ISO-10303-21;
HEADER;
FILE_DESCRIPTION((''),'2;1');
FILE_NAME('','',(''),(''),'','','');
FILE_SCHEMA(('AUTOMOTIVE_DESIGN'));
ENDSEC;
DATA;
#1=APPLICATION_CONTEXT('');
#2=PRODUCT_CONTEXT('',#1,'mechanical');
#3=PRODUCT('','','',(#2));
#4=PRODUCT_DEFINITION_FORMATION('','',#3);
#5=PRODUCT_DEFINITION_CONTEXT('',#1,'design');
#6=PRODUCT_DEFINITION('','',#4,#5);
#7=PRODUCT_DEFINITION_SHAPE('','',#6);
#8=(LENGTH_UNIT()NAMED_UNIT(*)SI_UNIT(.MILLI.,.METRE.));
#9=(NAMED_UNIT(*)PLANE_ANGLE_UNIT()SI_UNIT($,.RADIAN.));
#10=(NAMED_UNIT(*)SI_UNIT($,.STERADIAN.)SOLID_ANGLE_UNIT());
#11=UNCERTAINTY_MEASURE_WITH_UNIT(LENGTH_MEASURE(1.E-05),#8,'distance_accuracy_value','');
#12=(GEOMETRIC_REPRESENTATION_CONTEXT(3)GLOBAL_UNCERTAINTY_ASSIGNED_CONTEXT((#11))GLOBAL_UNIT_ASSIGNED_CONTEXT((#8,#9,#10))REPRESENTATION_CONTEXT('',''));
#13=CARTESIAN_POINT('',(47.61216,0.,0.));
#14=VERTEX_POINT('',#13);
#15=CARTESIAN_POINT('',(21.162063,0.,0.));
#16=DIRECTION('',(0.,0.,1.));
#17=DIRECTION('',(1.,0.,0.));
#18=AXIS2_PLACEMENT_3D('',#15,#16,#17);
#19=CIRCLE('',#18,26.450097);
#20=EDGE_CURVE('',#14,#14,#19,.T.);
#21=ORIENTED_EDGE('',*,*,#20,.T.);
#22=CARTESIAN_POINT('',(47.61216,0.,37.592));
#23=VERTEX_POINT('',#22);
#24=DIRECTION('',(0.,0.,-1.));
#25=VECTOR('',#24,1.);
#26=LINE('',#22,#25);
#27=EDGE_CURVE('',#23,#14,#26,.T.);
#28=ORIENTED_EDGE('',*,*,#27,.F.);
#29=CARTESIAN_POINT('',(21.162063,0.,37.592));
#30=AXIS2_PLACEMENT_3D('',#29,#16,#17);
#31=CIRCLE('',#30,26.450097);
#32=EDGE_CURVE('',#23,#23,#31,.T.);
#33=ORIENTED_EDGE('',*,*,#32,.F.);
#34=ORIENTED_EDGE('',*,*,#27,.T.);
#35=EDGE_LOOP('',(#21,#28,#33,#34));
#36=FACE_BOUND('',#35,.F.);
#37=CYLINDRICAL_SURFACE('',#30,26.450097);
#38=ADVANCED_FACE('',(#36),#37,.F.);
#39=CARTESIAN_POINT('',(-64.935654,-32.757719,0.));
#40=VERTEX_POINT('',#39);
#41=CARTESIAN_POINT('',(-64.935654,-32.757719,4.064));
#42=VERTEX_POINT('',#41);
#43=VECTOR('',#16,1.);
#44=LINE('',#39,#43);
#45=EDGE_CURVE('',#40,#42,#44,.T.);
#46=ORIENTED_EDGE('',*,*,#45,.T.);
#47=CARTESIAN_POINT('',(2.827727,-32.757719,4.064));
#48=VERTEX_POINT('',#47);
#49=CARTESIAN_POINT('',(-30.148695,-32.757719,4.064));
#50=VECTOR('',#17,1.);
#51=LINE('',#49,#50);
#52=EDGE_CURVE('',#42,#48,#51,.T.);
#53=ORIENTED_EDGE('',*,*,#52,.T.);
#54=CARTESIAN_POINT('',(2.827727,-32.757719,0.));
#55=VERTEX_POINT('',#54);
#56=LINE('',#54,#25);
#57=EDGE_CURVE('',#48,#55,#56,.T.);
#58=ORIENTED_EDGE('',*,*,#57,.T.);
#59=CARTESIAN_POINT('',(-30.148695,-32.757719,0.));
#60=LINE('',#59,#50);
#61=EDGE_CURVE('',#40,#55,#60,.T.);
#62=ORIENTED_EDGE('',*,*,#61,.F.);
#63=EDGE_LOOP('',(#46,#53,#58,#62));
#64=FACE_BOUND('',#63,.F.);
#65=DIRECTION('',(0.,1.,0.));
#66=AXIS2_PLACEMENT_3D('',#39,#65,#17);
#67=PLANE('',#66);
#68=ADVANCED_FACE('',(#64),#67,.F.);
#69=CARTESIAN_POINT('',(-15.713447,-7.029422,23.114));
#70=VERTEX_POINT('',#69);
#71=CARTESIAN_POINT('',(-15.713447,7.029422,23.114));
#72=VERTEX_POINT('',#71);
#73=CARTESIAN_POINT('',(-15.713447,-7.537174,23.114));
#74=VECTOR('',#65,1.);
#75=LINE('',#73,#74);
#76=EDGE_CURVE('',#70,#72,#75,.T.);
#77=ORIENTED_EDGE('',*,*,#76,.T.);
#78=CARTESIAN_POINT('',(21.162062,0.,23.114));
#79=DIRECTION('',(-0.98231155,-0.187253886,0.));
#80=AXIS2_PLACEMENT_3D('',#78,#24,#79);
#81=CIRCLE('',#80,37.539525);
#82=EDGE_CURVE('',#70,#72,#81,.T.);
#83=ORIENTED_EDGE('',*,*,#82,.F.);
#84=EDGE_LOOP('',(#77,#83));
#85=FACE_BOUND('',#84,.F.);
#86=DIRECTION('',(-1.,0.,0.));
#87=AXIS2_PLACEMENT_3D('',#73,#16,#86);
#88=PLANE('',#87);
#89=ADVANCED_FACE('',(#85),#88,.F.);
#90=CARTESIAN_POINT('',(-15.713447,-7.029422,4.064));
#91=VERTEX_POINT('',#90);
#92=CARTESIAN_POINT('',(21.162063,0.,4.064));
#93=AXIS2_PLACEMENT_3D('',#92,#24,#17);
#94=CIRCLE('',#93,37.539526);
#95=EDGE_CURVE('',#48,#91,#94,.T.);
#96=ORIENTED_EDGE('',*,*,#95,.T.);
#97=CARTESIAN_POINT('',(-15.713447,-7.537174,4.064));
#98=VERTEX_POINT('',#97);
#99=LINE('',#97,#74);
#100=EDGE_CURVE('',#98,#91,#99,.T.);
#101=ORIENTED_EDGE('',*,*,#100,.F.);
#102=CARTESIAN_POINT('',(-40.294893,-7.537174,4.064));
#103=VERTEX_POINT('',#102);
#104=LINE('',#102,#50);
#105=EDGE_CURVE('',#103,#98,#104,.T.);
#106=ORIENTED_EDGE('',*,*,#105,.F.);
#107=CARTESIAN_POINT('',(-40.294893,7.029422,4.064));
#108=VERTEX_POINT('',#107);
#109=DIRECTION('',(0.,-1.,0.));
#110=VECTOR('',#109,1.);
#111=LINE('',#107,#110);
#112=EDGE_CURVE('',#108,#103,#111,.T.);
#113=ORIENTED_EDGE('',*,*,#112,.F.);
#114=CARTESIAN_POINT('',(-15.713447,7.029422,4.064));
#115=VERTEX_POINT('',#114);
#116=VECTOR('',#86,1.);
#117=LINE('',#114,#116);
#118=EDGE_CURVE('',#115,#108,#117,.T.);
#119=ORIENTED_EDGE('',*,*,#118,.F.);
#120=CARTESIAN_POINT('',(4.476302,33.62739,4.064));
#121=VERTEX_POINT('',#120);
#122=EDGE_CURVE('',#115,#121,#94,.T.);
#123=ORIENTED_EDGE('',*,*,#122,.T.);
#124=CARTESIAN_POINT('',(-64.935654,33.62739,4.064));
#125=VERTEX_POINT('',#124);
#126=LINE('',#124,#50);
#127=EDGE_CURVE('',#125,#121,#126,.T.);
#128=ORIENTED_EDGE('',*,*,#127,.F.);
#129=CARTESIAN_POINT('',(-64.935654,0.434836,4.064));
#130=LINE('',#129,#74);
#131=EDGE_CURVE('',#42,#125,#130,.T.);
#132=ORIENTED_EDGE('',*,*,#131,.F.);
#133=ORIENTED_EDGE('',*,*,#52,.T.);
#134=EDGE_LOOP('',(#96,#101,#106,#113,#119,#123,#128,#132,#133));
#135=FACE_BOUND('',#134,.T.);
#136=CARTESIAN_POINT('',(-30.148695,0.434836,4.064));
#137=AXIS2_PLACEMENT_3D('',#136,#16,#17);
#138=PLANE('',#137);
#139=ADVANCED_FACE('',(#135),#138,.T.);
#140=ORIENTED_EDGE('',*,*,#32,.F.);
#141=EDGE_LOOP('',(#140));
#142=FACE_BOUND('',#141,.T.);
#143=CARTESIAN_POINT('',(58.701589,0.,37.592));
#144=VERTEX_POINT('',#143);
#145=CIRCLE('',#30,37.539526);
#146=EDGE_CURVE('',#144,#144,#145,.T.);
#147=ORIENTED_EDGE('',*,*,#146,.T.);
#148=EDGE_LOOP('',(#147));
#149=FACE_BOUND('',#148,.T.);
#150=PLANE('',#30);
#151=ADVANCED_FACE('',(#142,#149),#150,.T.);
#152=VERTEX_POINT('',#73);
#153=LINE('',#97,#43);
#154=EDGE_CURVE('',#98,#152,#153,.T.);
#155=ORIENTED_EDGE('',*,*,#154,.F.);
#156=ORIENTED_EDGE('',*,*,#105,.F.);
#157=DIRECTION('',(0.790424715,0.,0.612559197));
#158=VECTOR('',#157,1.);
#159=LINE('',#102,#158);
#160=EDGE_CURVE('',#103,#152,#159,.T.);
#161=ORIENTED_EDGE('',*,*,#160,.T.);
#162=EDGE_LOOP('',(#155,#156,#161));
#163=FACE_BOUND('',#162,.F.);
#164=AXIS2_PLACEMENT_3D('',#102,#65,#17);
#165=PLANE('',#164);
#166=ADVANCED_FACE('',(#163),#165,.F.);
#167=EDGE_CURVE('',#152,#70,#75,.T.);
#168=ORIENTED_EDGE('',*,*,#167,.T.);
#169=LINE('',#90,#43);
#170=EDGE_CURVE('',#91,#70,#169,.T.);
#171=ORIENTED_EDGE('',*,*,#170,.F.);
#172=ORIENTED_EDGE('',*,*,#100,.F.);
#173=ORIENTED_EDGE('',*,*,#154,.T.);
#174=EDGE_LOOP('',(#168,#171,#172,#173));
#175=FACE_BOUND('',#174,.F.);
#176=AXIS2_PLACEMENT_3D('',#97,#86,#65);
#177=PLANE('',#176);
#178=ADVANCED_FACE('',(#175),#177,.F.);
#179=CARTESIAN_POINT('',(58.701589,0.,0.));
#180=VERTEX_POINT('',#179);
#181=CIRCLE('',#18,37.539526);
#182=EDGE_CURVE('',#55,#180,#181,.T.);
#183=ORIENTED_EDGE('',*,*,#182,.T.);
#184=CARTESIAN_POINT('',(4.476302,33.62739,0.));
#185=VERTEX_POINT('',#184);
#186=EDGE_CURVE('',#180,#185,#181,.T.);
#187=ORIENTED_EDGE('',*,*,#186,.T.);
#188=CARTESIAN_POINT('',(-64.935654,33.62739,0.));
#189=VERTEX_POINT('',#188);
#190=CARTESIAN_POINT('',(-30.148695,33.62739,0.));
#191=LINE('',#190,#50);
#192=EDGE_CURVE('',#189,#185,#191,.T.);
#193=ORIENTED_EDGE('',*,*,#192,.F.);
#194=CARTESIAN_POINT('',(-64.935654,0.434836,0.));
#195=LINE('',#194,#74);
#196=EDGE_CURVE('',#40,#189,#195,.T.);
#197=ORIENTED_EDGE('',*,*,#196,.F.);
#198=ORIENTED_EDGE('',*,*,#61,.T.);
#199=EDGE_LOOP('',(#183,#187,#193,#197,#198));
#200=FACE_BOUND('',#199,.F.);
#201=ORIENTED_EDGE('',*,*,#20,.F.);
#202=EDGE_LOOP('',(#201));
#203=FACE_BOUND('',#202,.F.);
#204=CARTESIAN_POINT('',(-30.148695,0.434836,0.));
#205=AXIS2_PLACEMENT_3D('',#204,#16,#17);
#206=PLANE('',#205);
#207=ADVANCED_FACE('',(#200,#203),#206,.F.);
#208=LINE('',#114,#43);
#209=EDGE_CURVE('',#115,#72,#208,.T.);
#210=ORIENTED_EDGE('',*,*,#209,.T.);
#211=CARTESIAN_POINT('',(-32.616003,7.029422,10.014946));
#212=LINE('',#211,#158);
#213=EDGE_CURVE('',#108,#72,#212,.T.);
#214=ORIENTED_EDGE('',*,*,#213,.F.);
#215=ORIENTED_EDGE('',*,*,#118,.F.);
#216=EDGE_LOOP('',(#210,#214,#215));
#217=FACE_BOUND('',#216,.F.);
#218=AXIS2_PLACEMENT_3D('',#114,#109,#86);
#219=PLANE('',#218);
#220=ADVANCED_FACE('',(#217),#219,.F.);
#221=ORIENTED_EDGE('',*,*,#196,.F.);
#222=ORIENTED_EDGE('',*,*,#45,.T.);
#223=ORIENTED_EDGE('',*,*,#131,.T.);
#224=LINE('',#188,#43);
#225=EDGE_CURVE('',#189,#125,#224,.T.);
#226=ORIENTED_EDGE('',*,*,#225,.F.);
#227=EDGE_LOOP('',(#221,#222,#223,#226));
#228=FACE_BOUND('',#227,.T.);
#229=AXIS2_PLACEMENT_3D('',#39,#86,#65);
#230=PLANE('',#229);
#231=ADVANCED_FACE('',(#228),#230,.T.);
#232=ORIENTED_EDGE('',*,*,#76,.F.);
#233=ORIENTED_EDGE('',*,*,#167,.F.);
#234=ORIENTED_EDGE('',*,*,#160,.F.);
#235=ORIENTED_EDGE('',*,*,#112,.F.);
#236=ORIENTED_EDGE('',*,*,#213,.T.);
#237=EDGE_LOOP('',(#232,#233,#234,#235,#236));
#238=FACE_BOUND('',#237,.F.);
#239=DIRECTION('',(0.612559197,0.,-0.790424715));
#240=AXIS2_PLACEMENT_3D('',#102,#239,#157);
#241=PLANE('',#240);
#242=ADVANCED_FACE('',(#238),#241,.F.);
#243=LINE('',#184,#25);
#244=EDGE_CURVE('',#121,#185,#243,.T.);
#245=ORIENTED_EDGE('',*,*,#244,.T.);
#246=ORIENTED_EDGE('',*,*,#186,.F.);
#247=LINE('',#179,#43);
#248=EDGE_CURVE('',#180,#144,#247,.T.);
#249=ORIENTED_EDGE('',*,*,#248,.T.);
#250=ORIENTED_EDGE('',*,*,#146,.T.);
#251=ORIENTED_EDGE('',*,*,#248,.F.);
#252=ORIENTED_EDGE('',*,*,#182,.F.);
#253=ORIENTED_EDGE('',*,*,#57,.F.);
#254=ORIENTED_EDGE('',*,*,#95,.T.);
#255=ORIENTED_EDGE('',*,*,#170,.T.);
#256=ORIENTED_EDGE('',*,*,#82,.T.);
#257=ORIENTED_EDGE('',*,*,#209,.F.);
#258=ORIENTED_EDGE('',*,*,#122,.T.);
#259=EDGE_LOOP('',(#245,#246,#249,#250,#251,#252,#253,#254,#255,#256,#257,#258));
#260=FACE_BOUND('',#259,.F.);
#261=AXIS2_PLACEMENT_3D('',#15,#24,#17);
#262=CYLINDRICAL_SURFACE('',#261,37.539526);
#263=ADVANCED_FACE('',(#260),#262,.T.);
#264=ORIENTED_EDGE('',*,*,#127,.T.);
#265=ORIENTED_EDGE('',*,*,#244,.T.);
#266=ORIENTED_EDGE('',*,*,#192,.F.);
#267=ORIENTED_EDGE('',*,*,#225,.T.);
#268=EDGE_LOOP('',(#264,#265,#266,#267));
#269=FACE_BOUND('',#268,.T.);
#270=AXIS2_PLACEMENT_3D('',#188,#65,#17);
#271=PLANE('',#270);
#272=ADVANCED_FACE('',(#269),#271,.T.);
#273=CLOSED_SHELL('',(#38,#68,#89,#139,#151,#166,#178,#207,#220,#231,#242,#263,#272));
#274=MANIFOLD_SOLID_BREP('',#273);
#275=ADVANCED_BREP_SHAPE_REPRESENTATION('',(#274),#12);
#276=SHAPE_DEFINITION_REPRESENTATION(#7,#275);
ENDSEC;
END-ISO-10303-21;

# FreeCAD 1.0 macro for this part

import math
import FreeCAD as App
import Part
import Sketcher

V = App.Vector
Q = App.Units.Quantity

doc = App.newDocument("Part")
body = doc.addObject("PartDesign::Body", "Body")

sketch1 = doc.addObject("Sketcher::SketchObject", "Sketch")
body.addObject(sketch1)
sketch1.AttachmentSupport = (doc.XY_Plane, [""])
sketch1.MapMode = "FlatFace"
sketch1.addGeometry(Part.Circle(V(21, 0, 0), V(0, 0, 1), 38), False)
sketch1.addConstraint(Sketcher.Constraint("PointOnObject", 0, 3, -1))
sketch1.addConstraint(Sketcher.Constraint("Diameter", 0, 75.079052))
sketch1.addConstraint(Sketcher.Constraint("DistanceX", -1, 1, 0, 3, 21.162063))
pad1 = doc.addObject("PartDesign::Pad", "Pad")
body.addObject(pad1)
pad1.Profile = sketch1
pad1.Length = Q("1.48 in")

sketch2 = doc.addObject("Sketcher::SketchObject", "Sketch001")
body.addObject(sketch2)
sketch2.AttachmentSupport = (doc.XY_Plane, [""])
sketch2.MapMode = "FlatFace"
sketch2.addGeometry(Part.LineSegment(V(-65, 34, 0), V(-65, -33, 0)), False)
sketch2.addGeometry(Part.LineSegment(V(-65, -33, 0), V(5, -33, 0)), False)
sketch2.addGeometry(Part.LineSegment(V(5, -33, 0), V(5, 34, 0)), False)
sketch2.addGeometry(Part.LineSegment(V(5, 34, 0), V(-65, 34, 0)), False)
sketch2.addConstraint(Sketcher.Constraint("Coincident", 0, 2, 1, 1))
sketch2.addConstraint(Sketcher.Constraint("Coincident", 1, 2, 2, 1))
sketch2.addConstraint(Sketcher.Constraint("Coincident", 2, 2, 3, 1))
sketch2.addConstraint(Sketcher.Constraint("Coincident", 3, 2, 0, 1))
sketch2.addConstraint(Sketcher.Constraint("Vertical", 0))
sketch2.addConstraint(Sketcher.Constraint("Horizontal", 1))
sketch2.addConstraint(Sketcher.Constraint("Vertical", 2))
sketch2.addConstraint(Sketcher.Constraint("Horizontal", 3))
sketch2.addConstraint(Sketcher.Constraint("DistanceY", 0, 2, 0, 1, 66.385109))
sketch2.addConstraint(Sketcher.Constraint("DistanceX", 1, 1, 1, 2, 69.573917))
sketch2.addConstraint(Sketcher.Constraint("DistanceY", 0, 2, -1, 1, 32.757719))
sketch2.addConstraint(Sketcher.Constraint("DistanceX", 0, 2, -1, 1, 64.935654))
pad2 = doc.addObject("PartDesign::Pad", "Pad001")
body.addObject(pad2)
pad2.Profile = sketch2
pad2.Length = Q("0.16 in")

sketch3 = doc.addObject("Sketcher::SketchObject", "Sketch002")
body.addObject(sketch3)
sketch3.AttachmentSupport = (doc.XY_Plane, [""])
sketch3.MapMode = "FlatFace"
sketch3.AttachmentOffset = App.Placement(V(0, 0, 1.48 * 25.4), App.Rotation())
sketch3.addGeometry(Part.Circle(V(21, 0, 0), V(0, 0, 1), 26), False)
sketch3.addConstraint(Sketcher.Constraint("PointOnObject", 0, 3, -1))
sketch3.addConstraint(Sketcher.Constraint("Diameter", 0, 52.900194))
sketch3.addConstraint(Sketcher.Constraint("DistanceX", -1, 1, 0, 3, 21.162063))
pocket1 = doc.addObject("PartDesign::Pocket", "Pocket")
body.addObject(pocket1)
pocket1.Profile = sketch3
pocket1.Type = "ThroughAll"

sketch4 = doc.addObject("Sketcher::SketchObject", "Sketch003")
body.addObject(sketch4)
sketch4.AttachmentSupport = (doc.XY_Plane, [""])
sketch4.MapMode = "FlatFace"
sketch4.AttachmentOffset = App.Placement(V(0, 0, 0.16 * 25.4), App.Rotation())
sketch4.addGeometry(Part.ArcOfCircle(Part.Circle(V(21.2, 0, 0), V(0, 0, 1), 37.5), math.radians(169), math.radians(191)), False)
sketch4.addGeometry(Part.LineSegment(V(-15.7, 7, 0), V(-40.3, 7, 0)), False)
sketch4.addGeometry(Part.LineSegment(V(-40.3, 7, 0), V(-40.3, -7.5, 0)), False)
sketch4.addGeometry(Part.LineSegment(V(-40.3, -7.5, 0), V(-15.7, -7.5, 0)), False)
sketch4.addGeometry(Part.LineSegment(V(-15.7, -7.5, 0), V(-15.7, -7, 0)), False)
sketch4.addConstraint(Sketcher.Constraint("Coincident", 0, 1, 1, 1))
sketch4.addConstraint(Sketcher.Constraint("Coincident", 1, 2, 2, 1))
sketch4.addConstraint(Sketcher.Constraint("Coincident", 2, 2, 3, 1))
sketch4.addConstraint(Sketcher.Constraint("Coincident", 3, 2, 4, 1))
sketch4.addConstraint(Sketcher.Constraint("Coincident", 4, 2, 0, 2))
sketch4.addConstraint(Sketcher.Constraint("Horizontal", 1))
sketch4.addConstraint(Sketcher.Constraint("Vertical", 2))
sketch4.addConstraint(Sketcher.Constraint("Horizontal", 3))
sketch4.addConstraint(Sketcher.Constraint("Vertical", 4))
sketch4.addConstraint(Sketcher.Constraint("Symmetric", 0, 1, 4, 2, -1))
sketch4.addConstraint(Sketcher.Constraint("Radius", 0, 37.539525))
sketch4.addConstraint(Sketcher.Constraint("DistanceY", 4, 1, 4, 2, 0.507752))
sketch4.addConstraint(Sketcher.Constraint("DistanceX", 1, 2, 1, 1, 24.581446))
sketch4.addConstraint(Sketcher.Constraint("DistanceY", 2, 2, 2, 1, 14.566596))
sketch4.addConstraint(Sketcher.Constraint("DistanceX", -1, 1, 0, 3, 21.162062))
pad3 = doc.addObject("PartDesign::Pad", "Pad002")
body.addObject(pad3)
pad3.Profile = sketch4
pad3.Length = Q("0.75 in")

sketch5 = doc.addObject("Sketcher::SketchObject", "Sketch004")
body.addObject(sketch5)
sketch5.AttachmentSupport = (doc.XZ_Plane, [""])
sketch5.MapMode = "FlatFace"
sketch5.AttachmentOffset = App.Placement(V(0, 0, 7.537174), App.Rotation())
sketch5.addGeometry(Part.LineSegment(V(-40, 23, 0), V(-40, 4, 0)), False)
sketch5.addGeometry(Part.LineSegment(V(-40, 4, 0), V(-16, 23, 0)), False)
sketch5.addGeometry(Part.LineSegment(V(-16, 23, 0), V(-40, 23, 0)), False)
sketch5.addConstraint(Sketcher.Constraint("Coincident", 0, 2, 1, 1))
sketch5.addConstraint(Sketcher.Constraint("Coincident", 1, 2, 2, 1))
sketch5.addConstraint(Sketcher.Constraint("Coincident", 2, 2, 0, 1))
sketch5.addConstraint(Sketcher.Constraint("Vertical", 0))
sketch5.addConstraint(Sketcher.Constraint("Horizontal", 2))
sketch5.addConstraint(Sketcher.Constraint("DistanceY", 0, 2, 0, 1, Q("0.75 in")))
sketch5.addConstraint(Sketcher.Constraint("DistanceY", -1, 1, 0, 2, Q("0.16 in")))
sketch5.addConstraint(Sketcher.Constraint("DistanceX", 2, 2, 2, 1, 24.581446))
sketch5.addConstraint(Sketcher.Constraint("DistanceX", 0, 2, -1, 1, 40.294893))
pocket2 = doc.addObject("PartDesign::Pocket", "Pocket001")
body.addObject(pocket2)
pocket2.Profile = sketch5
pocket2.Type = "ThroughAll"

doc.recompute()
